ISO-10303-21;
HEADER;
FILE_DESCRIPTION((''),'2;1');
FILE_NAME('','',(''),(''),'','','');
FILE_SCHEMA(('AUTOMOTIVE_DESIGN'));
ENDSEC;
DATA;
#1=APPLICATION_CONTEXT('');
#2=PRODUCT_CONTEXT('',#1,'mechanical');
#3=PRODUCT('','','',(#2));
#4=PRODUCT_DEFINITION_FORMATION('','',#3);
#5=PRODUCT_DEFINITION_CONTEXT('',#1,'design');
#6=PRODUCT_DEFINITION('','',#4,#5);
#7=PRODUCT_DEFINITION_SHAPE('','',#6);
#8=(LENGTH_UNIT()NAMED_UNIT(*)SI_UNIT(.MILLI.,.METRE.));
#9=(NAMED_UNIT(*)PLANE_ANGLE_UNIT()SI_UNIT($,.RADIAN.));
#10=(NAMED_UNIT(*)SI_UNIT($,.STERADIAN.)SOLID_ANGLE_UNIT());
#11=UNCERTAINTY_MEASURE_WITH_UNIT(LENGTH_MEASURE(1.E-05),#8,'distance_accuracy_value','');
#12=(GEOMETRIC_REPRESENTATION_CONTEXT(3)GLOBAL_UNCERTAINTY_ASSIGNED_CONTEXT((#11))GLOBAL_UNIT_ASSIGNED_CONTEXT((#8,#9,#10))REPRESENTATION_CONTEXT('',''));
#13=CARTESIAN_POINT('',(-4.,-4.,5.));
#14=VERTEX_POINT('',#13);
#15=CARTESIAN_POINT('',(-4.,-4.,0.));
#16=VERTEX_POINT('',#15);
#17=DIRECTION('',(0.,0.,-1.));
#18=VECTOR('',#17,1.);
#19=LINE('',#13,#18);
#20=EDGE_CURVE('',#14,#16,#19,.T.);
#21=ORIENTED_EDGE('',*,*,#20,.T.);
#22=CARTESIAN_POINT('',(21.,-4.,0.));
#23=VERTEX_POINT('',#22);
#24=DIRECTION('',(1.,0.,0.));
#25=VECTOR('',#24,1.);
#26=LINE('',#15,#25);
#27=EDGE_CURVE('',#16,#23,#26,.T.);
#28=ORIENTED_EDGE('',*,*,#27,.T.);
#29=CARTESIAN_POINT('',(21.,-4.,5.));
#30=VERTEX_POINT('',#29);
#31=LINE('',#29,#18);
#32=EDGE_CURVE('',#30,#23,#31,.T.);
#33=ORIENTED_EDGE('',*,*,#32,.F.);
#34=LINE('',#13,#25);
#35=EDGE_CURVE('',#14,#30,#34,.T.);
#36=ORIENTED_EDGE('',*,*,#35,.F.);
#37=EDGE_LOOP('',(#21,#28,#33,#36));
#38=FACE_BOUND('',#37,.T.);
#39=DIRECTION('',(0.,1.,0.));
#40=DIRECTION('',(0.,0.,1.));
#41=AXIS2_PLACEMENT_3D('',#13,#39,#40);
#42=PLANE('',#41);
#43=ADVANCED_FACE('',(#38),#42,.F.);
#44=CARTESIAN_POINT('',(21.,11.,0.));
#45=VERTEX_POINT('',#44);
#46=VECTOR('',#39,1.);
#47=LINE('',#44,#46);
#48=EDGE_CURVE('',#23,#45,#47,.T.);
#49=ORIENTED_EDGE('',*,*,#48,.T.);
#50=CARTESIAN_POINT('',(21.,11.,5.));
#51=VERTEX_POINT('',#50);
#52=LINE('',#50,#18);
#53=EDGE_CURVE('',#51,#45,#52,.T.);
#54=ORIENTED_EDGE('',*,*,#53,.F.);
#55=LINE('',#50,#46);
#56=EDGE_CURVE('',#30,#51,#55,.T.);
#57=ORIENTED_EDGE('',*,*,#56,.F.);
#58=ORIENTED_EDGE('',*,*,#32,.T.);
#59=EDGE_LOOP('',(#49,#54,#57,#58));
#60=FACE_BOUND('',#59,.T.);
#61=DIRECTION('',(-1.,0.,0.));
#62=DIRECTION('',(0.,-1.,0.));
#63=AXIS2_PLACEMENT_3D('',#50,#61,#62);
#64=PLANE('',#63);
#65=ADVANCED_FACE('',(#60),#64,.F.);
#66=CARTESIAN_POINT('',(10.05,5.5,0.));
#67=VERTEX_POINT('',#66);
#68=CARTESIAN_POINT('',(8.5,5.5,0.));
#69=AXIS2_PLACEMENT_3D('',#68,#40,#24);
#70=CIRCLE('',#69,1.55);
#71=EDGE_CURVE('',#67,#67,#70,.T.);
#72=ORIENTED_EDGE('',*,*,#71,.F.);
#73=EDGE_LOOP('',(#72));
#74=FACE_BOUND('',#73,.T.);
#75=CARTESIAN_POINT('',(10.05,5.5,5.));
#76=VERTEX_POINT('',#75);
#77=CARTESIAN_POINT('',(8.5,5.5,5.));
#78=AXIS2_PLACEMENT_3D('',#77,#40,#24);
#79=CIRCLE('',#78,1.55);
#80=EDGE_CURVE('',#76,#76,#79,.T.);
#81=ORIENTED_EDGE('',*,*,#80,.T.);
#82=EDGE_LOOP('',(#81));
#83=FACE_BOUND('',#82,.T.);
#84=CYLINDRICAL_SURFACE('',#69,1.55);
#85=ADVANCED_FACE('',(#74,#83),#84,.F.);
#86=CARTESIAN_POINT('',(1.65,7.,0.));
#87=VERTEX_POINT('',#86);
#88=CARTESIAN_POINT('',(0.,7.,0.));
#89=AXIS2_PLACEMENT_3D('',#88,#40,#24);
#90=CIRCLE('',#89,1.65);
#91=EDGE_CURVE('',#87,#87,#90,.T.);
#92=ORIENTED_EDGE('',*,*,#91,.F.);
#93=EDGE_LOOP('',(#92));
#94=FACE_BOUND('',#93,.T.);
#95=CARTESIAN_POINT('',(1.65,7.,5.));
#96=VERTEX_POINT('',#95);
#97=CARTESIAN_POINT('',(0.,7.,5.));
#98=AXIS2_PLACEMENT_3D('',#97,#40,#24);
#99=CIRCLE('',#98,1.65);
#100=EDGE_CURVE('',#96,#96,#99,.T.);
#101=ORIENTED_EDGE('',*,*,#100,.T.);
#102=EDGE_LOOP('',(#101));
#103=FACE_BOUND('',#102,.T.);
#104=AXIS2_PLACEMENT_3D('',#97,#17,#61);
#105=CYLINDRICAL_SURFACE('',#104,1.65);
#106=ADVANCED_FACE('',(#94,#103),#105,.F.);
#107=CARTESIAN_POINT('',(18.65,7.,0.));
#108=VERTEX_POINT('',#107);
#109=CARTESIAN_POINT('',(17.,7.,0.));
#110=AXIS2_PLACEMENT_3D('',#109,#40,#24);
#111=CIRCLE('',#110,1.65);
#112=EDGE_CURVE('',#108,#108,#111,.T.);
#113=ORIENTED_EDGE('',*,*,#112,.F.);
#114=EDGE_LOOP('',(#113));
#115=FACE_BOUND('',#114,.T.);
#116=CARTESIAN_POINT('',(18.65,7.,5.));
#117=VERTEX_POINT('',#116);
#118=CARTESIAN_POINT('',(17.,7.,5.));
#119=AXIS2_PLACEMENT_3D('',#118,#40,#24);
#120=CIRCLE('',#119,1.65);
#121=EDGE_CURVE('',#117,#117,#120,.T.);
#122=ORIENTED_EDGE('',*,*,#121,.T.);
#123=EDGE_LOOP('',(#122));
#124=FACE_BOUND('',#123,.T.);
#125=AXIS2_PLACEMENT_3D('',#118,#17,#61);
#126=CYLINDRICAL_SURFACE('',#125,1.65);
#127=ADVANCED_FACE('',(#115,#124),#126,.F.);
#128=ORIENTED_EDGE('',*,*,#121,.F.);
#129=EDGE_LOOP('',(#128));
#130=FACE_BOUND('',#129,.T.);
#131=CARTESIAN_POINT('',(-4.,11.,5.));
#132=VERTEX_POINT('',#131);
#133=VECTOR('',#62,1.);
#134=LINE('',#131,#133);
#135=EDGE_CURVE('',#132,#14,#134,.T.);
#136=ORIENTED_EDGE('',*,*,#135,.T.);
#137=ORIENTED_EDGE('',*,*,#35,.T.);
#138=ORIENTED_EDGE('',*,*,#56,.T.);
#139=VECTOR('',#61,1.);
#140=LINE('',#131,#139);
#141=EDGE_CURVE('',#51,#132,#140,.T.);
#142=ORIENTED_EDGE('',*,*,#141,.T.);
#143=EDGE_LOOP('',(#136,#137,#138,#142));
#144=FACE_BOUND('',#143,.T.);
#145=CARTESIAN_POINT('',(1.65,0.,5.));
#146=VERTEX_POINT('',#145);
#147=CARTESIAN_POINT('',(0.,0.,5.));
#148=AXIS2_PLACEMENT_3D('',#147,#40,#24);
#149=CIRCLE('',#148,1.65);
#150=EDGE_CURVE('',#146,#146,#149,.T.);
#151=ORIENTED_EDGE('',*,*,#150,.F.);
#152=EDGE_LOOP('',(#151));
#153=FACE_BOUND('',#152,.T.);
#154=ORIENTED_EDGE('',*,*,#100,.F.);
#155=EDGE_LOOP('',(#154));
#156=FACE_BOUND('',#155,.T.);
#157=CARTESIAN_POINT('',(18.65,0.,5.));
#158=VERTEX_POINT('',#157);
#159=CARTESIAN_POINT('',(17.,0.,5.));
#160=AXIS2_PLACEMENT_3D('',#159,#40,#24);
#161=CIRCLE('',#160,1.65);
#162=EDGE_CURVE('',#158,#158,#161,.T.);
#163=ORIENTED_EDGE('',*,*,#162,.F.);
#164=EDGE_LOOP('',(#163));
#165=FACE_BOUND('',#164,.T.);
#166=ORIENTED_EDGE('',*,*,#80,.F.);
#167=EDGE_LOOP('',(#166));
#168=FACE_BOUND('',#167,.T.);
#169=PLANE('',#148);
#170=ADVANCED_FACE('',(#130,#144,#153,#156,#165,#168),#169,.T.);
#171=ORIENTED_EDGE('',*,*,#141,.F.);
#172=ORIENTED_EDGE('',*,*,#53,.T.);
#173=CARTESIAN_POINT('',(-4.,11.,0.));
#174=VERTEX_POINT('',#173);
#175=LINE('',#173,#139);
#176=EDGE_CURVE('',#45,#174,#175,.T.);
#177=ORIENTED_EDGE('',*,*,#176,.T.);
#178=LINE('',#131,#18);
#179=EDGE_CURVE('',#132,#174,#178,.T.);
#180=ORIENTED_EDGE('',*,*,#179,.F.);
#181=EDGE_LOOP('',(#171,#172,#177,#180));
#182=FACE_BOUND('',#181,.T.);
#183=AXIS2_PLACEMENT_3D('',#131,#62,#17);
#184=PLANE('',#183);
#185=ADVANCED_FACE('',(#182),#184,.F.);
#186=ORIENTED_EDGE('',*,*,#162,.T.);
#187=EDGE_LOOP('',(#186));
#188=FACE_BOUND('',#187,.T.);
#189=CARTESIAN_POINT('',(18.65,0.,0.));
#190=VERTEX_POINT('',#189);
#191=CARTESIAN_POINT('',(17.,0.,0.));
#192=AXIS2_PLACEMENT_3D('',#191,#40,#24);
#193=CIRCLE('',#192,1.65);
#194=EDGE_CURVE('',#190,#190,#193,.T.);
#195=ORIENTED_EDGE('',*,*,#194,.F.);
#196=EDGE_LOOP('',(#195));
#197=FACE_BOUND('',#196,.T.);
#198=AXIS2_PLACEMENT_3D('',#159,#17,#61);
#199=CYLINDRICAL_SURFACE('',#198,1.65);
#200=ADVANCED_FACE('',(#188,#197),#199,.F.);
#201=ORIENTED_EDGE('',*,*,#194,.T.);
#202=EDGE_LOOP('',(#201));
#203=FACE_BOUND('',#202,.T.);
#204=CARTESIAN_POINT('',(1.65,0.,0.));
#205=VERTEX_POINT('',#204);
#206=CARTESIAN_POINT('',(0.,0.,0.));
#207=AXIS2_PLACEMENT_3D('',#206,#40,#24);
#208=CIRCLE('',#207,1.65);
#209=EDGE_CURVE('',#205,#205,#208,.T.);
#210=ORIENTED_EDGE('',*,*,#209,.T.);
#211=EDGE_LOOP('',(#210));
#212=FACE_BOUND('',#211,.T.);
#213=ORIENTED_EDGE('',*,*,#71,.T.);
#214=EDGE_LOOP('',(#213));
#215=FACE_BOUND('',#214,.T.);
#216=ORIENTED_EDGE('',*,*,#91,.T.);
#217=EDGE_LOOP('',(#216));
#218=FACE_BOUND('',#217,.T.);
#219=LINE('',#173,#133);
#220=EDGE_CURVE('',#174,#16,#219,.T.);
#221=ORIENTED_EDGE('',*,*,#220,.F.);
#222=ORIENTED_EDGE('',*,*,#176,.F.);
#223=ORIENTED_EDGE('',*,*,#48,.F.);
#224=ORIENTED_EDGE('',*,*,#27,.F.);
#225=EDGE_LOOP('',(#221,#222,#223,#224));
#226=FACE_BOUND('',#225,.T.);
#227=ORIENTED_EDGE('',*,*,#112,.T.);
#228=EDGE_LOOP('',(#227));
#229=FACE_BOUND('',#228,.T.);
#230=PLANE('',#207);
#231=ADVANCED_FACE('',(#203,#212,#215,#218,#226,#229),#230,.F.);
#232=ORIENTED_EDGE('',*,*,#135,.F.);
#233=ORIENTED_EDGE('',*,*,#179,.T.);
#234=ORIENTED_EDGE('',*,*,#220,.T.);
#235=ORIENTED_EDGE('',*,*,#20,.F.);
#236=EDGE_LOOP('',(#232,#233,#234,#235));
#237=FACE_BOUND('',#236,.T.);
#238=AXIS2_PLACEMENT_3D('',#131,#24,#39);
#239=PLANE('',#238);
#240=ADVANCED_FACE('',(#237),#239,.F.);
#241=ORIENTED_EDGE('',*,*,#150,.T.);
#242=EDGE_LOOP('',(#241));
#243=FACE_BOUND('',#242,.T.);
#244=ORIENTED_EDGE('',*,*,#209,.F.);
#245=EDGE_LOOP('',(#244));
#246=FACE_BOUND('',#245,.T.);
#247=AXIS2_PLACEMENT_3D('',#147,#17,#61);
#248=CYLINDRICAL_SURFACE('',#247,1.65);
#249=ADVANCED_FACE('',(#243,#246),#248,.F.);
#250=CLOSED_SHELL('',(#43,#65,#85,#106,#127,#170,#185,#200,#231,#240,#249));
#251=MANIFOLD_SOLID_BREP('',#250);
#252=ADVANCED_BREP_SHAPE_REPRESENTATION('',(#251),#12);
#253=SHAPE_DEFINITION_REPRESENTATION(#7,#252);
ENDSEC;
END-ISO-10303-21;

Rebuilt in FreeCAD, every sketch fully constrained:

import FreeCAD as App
import Part
import Sketcher
from FreeCAD import Vector


def add_polygon(sketch, points):
    """Adds a closed chain of lines whose ends are joined by coincident constraints."""
    first, n = sketch.GeometryCount, len(points)
    for a, b in zip(points, points[1:] + points[:1]):
        sketch.addGeometry(Part.LineSegment(App.Vector(*a, 0), App.Vector(*b, 0)), False)
    for i in range(n):
        sketch.addConstraint(Sketcher.Constraint("Coincident", first + i, 2, first + (i + 1) % n, 1))

doc = App.newDocument("Part")
body = doc.addObject("PartDesign::Body", "Body")

sketch1 = doc.addObject("Sketcher::SketchObject", "Sketch")
body.addObject(sketch1)
sketch1.AttachmentSupport = (doc.XY_Plane, [""])
sketch1.MapMode = "FlatFace"
add_polygon(sketch1, [(-4, 11), (-4, -4), (21, -4), (21, 11)])
sketch1.addGeometry(Part.Circle(Vector(0, 0, 0), Vector(0, 0, 1), 1.65), False)
sketch1.addGeometry(Part.Circle(Vector(17, 0, 0), Vector(0, 0, 1), 1.65), False)
sketch1.addGeometry(Part.Circle(Vector(0, 7, 0), Vector(0, 0, 1), 1.65), False)
sketch1.addGeometry(Part.Circle(Vector(17, 7, 0), Vector(0, 0, 1), 1.65), False)
sketch1.addConstraint(Sketcher.Constraint("Vertical", 0))
sketch1.addConstraint(Sketcher.Constraint("Horizontal", 1))
sketch1.addConstraint(Sketcher.Constraint("Vertical", 2))
sketch1.addConstraint(Sketcher.Constraint("Horizontal", 3))
sketch1.addConstraint(Sketcher.Constraint("Coincident", 4, 3, -1, 1))
sketch1.addConstraint(Sketcher.Constraint("Equal", 4, 5))
sketch1.addConstraint(Sketcher.Constraint("Equal", 5, 6))
sketch1.addConstraint(Sketcher.Constraint("Equal", 6, 7))
sketch1.addConstraint(Sketcher.Constraint("PointOnObject", 5, 3, -1))
sketch1.addConstraint(Sketcher.Constraint("PointOnObject", 6, 3, -2))
sketch1.addConstraint(Sketcher.Constraint("Horizontal", 6, 3, 7, 3))
sketch1.addConstraint(Sketcher.Constraint("Vertical", 5, 3, 7, 3))
sketch1.addConstraint(Sketcher.Constraint("Diameter", 4, 3.3))
sketch1.addConstraint(Sketcher.Constraint("DistanceX", 1, 1, 1, 2, 25.0))
sketch1.addConstraint(Sketcher.Constraint("DistanceY", 0, 2, 0, 1, 15.0))
sketch1.addConstraint(Sketcher.Constraint("DistanceX", -1, 1, 5, 3, 17.0))
sketch1.addConstraint(Sketcher.Constraint("DistanceY", -1, 1, 6, 3, 7.0))
sketch1.addConstraint(Sketcher.Constraint("DistanceX", 0, 2, -1, 1, 4.0))
sketch1.addConstraint(Sketcher.Constraint("DistanceY", 0, 2, -1, 1, 4.0))
pad1 = doc.addObject("PartDesign::Pad", "Pad")
body.addObject(pad1)
pad1.Profile = sketch1
pad1.Length = 5

sketch2 = doc.addObject("Sketcher::SketchObject", "Sketch001")
body.addObject(sketch2)
sketch2.AttachmentSupport = (doc.XY_Plane, [""])
sketch2.MapMode = "FlatFace"
sketch2.AttachmentOffset = App.Placement(Vector(0, 0, 5), App.Rotation())
sketch2.addGeometry(Part.Circle(Vector(8.5, 5.5, 0), Vector(0, 0, 1), 1.55), False)
sketch2.addConstraint(Sketcher.Constraint("Diameter", 0, 3.1))
sketch2.addConstraint(Sketcher.Constraint("DistanceX", -1, 1, 0, 3, 8.5))
sketch2.addConstraint(Sketcher.Constraint("DistanceY", -1, 1, 0, 3, 5.5))
pocket1 = doc.addObject("PartDesign::Pocket", "Pocket")
body.addObject(pocket1)
pocket1.Profile = sketch2
pocket1.Length = 5

doc.recompute()
